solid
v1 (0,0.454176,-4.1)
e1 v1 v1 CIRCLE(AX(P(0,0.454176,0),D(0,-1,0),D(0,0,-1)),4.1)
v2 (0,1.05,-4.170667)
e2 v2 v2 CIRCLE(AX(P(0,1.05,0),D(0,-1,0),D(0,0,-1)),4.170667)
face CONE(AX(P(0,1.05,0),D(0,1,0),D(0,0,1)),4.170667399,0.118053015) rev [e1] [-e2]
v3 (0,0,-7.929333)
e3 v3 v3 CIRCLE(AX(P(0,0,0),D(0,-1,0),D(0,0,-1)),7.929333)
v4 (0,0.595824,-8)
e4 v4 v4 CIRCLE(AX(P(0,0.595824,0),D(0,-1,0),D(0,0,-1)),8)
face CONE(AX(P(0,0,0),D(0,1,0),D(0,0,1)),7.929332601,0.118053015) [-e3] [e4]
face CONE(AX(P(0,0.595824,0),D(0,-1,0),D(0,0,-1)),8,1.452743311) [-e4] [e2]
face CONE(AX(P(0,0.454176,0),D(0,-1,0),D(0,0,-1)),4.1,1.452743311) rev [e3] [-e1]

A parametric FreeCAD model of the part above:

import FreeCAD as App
import Part
import Sketcher


def add_polygon(sketch, points):
    """Adds a closed chain of lines whose ends are joined by coincident constraints."""
    first, n = sketch.GeometryCount, len(points)
    for a, b in zip(points, points[1:] + points[:1]):
        sketch.addGeometry(Part.LineSegment(App.Vector(*a, 0), App.Vector(*b, 0)), False)
    for i in range(n):
        sketch.addConstraint(Sketcher.Constraint("Coincident", first + i, 2, first + (i + 1) % n, 1))

doc = App.newDocument("Part")
body = doc.addObject("PartDesign::Body", "Body")

sketch1 = body.newObject("Sketcher::SketchObject", "Sketch")
sketch1.AttachmentSupport = (doc.getObject("XY_Plane"), [""])
sketch1.MapMode = "FlatFace"
add_polygon(sketch1, [(4.1, 0.5), (7.9, 0), (8, 0.6), (4.2, 1.1)])
sketch1.addConstraint([
    Sketcher.Constraint("PointOnObject", 0, 2, -1),
    Sketcher.Constraint("Perpendicular", 0, 1),
    Sketcher.Constraint("Perpendicular", 1, 2),
    Sketcher.Constraint("Perpendicular", 2, 3),
    Sketcher.Constraint("DistanceX", -1, 1, 1, 2, 8.0),
    Sketcher.Constraint("Distance", 1, 0.6),
    Sketcher.Constraint("DistanceX", -1, 1, 3, 2, 4.1),
    Sketcher.Constraint("DistanceY", -1, 1, 2, 2, 1.05),
])
revolution = body.newObject("PartDesign::Revolution", "Revolution")
revolution.Profile = sketch1
revolution.ReferenceAxis = (sketch1, ["V_Axis"])
revolution.Angle = 360

doc.recompute()
